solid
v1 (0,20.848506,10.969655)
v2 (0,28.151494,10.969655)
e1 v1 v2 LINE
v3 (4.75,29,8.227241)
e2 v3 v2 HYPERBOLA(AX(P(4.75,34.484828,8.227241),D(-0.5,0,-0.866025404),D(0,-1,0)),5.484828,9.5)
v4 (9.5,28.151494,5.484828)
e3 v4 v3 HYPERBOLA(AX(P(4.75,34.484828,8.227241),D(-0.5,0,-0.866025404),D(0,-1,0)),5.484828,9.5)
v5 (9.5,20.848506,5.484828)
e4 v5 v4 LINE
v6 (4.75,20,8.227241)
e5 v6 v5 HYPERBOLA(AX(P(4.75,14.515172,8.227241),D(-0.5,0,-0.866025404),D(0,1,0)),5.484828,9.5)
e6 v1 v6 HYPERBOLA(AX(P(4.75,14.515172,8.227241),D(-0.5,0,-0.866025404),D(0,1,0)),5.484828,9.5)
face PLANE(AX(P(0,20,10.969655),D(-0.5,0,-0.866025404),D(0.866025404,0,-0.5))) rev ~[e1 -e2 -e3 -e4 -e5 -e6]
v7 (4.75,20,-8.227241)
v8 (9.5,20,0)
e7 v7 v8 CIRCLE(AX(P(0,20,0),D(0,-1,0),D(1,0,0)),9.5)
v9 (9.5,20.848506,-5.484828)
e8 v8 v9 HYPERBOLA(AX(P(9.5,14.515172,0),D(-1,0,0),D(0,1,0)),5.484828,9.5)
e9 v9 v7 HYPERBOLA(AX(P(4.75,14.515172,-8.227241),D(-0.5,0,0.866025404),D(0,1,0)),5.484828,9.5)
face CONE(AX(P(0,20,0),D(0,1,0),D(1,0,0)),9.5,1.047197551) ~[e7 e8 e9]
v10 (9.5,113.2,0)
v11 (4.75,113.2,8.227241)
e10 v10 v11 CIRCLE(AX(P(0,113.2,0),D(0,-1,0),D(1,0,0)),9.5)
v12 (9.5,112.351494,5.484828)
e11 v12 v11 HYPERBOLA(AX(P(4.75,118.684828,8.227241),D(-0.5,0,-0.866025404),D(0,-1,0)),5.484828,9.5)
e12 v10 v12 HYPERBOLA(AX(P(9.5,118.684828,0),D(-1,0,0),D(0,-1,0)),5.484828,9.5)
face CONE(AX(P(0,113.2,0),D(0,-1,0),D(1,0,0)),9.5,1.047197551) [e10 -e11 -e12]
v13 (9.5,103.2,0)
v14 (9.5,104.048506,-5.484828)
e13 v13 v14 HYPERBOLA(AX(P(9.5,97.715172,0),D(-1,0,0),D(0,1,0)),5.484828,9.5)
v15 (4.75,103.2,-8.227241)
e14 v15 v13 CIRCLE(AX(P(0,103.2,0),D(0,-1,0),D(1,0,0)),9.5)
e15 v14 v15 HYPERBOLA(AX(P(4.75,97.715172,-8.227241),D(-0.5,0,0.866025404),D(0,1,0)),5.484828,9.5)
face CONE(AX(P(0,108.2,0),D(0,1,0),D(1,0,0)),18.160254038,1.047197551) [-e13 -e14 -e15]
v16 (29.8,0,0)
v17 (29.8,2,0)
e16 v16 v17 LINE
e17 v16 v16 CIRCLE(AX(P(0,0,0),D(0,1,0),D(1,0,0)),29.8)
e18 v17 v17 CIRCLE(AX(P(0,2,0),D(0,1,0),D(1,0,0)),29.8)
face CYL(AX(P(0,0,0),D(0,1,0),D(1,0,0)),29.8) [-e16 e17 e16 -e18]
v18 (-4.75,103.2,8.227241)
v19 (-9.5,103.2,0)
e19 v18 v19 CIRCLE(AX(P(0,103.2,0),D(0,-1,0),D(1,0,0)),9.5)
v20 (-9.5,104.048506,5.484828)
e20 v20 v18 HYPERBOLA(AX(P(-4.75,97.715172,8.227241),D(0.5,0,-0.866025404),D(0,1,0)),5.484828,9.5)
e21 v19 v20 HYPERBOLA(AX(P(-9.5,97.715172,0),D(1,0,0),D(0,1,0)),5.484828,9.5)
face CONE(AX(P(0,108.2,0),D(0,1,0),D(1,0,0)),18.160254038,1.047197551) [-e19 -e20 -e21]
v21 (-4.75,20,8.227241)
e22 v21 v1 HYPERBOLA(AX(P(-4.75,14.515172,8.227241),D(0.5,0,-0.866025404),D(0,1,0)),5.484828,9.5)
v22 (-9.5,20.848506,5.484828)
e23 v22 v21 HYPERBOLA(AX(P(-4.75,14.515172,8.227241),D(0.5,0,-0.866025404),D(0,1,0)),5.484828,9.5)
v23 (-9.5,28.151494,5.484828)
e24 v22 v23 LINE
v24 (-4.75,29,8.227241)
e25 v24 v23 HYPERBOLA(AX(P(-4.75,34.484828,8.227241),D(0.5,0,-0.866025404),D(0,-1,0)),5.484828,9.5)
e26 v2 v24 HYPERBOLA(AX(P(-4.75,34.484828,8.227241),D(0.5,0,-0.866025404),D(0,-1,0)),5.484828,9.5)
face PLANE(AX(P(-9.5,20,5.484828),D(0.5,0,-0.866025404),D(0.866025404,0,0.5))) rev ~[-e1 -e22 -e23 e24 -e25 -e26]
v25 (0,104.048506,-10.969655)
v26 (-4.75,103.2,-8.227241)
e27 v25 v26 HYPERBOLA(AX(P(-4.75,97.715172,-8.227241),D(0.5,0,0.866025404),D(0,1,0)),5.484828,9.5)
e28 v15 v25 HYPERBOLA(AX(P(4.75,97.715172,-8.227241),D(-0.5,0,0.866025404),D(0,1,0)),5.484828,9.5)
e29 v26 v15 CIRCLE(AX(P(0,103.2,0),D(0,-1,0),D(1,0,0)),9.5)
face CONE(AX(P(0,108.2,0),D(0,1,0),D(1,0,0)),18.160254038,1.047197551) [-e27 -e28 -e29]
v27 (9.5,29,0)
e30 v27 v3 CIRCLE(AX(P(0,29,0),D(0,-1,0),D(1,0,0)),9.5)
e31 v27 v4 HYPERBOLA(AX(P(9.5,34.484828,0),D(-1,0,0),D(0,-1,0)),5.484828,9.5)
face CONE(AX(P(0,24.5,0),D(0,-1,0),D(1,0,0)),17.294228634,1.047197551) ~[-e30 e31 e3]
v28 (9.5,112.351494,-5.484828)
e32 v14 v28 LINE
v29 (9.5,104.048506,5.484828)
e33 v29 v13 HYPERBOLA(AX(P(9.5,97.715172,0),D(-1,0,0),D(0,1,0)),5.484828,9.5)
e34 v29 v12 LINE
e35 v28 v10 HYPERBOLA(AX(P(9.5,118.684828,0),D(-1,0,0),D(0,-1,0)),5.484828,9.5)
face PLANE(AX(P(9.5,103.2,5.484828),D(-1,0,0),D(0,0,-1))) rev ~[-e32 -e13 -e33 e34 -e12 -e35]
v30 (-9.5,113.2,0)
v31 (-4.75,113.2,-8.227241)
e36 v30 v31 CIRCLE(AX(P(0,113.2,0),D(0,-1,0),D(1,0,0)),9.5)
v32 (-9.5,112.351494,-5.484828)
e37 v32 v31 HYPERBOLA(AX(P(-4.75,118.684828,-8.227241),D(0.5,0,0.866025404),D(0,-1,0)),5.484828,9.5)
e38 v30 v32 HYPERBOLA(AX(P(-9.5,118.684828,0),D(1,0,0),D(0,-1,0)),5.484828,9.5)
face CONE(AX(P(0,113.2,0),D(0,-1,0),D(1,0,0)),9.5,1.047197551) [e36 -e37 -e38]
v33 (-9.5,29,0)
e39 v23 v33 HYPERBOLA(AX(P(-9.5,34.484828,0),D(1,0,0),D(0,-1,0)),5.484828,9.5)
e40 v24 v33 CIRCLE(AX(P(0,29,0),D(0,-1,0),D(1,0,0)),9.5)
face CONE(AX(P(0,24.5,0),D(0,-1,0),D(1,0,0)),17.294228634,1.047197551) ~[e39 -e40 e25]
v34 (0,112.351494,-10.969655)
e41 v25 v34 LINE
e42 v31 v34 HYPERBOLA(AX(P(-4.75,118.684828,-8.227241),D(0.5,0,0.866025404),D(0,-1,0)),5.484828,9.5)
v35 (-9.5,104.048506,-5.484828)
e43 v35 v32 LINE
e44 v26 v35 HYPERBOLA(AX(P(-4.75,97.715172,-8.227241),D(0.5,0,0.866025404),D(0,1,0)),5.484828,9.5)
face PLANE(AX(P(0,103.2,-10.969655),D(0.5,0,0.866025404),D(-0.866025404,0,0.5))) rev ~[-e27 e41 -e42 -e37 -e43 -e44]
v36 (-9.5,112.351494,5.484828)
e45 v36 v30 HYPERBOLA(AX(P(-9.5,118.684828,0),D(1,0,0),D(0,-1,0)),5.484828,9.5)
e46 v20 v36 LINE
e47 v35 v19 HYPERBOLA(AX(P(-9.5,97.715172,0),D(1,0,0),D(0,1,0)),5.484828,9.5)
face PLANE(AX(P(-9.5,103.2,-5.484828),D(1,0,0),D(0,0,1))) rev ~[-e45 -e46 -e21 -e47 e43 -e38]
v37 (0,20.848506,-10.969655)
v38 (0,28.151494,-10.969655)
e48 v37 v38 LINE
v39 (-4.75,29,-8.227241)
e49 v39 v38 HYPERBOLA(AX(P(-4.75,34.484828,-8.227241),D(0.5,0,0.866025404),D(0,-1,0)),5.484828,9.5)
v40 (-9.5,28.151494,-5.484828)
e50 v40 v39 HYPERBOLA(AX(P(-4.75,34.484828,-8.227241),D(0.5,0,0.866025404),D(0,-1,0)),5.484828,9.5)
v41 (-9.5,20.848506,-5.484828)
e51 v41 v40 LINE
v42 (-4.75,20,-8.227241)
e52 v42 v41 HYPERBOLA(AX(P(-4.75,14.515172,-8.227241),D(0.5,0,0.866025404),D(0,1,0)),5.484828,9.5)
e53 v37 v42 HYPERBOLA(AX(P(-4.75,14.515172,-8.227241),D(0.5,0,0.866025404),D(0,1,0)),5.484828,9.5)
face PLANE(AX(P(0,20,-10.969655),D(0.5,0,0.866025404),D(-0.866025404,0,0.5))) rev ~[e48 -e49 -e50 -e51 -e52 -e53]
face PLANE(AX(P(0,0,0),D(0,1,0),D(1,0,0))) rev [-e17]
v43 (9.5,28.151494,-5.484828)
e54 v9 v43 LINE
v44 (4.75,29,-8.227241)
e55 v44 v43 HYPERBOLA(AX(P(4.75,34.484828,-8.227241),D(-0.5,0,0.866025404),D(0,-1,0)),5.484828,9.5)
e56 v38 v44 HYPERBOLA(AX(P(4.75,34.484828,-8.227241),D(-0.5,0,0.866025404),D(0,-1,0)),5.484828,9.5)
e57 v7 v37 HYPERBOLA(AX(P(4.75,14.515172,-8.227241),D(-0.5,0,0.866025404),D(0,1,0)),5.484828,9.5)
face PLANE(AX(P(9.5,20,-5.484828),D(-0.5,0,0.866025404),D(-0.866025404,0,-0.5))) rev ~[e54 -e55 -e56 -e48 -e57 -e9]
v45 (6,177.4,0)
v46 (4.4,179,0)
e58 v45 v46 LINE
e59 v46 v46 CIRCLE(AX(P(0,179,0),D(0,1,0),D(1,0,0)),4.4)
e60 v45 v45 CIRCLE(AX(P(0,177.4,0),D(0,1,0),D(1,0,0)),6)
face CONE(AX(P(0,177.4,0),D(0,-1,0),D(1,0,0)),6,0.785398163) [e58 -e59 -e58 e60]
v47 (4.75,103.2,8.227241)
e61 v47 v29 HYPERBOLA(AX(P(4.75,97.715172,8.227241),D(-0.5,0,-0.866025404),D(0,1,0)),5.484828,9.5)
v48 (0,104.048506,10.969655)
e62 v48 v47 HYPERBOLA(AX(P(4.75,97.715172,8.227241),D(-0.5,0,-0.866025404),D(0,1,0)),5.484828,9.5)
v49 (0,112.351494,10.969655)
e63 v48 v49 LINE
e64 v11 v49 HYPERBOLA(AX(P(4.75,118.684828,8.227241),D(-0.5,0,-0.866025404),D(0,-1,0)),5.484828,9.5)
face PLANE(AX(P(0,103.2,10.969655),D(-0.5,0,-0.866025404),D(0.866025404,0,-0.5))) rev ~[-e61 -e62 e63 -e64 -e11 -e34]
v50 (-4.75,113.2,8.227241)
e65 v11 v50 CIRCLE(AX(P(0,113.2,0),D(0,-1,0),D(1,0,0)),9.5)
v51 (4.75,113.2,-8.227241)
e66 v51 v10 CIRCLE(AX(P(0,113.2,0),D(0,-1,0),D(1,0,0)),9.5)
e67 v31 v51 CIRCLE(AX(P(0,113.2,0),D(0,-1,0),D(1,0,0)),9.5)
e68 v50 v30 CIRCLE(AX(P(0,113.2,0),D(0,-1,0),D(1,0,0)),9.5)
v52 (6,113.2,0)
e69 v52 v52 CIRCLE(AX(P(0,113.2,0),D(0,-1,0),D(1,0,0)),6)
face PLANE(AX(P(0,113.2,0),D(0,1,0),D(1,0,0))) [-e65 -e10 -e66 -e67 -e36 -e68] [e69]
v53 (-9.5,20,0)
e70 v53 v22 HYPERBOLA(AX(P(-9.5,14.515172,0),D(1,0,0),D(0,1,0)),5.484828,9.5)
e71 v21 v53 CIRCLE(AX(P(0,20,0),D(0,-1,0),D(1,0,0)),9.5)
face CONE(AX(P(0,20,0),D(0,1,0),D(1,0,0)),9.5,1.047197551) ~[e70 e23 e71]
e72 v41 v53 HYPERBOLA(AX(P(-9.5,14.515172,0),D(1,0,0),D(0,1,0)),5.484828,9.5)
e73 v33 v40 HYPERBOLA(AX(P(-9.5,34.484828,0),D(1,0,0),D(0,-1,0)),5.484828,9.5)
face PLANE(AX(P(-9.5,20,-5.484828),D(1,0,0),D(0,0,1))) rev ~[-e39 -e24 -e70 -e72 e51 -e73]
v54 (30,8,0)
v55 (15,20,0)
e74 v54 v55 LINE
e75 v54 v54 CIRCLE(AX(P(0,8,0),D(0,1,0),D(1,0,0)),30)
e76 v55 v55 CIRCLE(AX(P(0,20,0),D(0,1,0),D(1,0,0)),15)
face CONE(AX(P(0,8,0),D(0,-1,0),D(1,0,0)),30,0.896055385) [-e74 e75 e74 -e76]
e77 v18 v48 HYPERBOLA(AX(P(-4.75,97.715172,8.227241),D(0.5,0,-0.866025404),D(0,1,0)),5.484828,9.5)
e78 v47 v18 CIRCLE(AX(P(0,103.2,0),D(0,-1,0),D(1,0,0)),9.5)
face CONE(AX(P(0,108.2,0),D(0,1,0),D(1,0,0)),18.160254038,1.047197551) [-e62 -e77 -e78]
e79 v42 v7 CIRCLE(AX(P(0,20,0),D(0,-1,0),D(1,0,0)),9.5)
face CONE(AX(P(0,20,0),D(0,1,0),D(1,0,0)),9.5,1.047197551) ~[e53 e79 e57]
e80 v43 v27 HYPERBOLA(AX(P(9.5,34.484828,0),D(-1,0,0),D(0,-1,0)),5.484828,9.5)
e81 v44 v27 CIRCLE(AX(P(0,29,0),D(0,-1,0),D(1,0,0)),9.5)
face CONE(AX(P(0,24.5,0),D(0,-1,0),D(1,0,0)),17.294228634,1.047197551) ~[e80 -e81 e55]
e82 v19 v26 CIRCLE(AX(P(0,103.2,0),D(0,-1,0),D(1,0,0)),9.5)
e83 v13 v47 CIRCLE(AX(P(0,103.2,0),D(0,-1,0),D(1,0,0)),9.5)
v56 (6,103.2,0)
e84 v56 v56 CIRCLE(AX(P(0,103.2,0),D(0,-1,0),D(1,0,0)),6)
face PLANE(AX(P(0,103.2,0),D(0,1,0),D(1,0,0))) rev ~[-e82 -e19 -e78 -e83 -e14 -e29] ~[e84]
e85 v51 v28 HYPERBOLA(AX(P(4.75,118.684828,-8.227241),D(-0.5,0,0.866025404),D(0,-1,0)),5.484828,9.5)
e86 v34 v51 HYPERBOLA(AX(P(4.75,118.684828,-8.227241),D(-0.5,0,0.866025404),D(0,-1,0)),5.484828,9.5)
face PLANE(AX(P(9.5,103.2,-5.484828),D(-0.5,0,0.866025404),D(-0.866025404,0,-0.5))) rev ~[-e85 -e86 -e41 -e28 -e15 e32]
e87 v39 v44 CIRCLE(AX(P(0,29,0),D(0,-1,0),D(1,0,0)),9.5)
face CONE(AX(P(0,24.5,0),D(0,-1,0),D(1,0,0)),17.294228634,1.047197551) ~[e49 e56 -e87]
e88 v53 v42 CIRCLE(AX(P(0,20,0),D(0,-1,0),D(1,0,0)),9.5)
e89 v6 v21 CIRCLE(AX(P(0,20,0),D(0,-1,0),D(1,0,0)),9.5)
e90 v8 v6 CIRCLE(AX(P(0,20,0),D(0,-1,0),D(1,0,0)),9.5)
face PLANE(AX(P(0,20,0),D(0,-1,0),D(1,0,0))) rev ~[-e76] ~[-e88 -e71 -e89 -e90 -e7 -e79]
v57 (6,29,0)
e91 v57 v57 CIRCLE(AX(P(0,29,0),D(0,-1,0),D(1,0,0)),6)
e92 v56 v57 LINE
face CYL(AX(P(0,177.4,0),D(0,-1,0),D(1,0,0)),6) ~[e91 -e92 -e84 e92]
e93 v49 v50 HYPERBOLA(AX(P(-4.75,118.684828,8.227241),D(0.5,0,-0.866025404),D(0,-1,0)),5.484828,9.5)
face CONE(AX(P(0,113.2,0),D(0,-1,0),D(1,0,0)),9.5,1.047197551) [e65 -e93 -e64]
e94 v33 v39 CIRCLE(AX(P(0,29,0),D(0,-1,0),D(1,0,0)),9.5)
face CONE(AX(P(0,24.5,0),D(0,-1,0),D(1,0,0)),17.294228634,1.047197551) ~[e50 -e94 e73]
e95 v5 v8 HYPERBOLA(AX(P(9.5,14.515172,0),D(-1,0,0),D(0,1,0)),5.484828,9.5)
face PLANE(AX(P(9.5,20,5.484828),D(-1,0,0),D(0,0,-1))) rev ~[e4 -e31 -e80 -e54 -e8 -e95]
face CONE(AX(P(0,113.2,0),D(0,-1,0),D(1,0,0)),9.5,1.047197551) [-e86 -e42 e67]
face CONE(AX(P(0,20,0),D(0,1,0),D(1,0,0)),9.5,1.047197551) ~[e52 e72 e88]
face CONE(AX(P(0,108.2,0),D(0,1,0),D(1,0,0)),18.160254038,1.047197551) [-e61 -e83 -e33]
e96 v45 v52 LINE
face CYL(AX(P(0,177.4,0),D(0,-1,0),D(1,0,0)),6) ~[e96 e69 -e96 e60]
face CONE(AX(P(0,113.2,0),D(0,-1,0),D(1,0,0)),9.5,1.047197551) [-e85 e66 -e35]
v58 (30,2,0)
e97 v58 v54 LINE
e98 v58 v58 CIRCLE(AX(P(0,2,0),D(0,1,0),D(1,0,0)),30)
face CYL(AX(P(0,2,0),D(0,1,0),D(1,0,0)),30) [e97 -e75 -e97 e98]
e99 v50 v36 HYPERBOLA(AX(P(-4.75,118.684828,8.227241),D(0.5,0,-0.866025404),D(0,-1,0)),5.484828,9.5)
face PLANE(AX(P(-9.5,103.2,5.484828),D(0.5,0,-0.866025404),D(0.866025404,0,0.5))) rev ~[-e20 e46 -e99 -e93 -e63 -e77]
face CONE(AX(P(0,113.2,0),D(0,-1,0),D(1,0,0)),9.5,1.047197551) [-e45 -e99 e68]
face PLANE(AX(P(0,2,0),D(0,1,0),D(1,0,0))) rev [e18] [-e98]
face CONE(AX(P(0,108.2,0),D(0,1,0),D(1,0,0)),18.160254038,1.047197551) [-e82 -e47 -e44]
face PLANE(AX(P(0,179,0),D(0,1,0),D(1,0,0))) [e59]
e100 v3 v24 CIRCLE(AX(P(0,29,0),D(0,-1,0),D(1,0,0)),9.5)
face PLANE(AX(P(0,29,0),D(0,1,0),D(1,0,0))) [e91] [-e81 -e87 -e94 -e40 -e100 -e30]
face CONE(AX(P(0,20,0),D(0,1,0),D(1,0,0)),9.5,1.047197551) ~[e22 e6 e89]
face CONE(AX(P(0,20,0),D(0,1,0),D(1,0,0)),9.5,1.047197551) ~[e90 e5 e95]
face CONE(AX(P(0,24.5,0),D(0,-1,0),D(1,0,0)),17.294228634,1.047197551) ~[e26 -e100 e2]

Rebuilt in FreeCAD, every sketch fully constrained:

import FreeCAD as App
import Part
import Sketcher

V = App.Vector
Q = App.Units.Quantity


def add_polygon(sketch, points):
    """Adds a closed chain of lines whose ends are joined by coincident constraints."""
    first, n = sketch.GeometryCount, len(points)
    for a, b in zip(points, points[1:] + points[:1]):
        sketch.addGeometry(Part.LineSegment(App.Vector(*a, 0), App.Vector(*b, 0)), False)
    for i in range(n):
        sketch.addConstraint(Sketcher.Constraint("Coincident", first + i, 2, first + (i + 1) % n, 1))

doc = App.newDocument("Part")
body = doc.addObject("PartDesign::Body", "Body")

# Sketch on XY plane
sketch1 = body.newObject("Sketcher::SketchObject", "Sketch")
sketch1.AttachmentSupport = (doc.getObject("XY_Plane"), [""])
sketch1.MapMode = "FlatFace"
add_polygon(sketch1, [(-29.8, 0), (0, 0), (0, 179), (-4.4, 179), (-6, 177.4), (-6, 20), (-15, 20), (-30, 8), (-30, 2), (-29.8, 2)])  # lines 0-9
sketch1.addConstraint([
    Sketcher.Constraint("Horizontal", 0),
    Sketcher.Constraint("Vertical", 1),
    Sketcher.Constraint("Horizontal", 2),
    Sketcher.Constraint("Vertical", 4),
    Sketcher.Constraint("Horizontal", 5),
    Sketcher.Constraint("Vertical", 7),
    Sketcher.Constraint("Horizontal", 8),
    Sketcher.Constraint("Vertical", 9),
    Sketcher.Constraint("Coincident", 0, 2, -1, 1),
    Sketcher.Constraint("DistanceX", 5, 2, 5, 1, 9.0),
    Sketcher.Constraint("DistanceY", 1, 1, 1, 2, 179.0),
    Sketcher.Constraint("DistanceY", 7, 2, 7, 1, 6.0),
    Sketcher.Constraint("DistanceY", 9, 2, 9, 1, 2.0),
    Sketcher.Constraint("Angle", 3, Q("-135 deg")),
    Sketcher.Constraint("DistanceX", 0, 1, 0, 2, 29.8),
    Sketcher.Constraint("DistanceX", 2, 2, 2, 1, 4.4),
    Sketcher.Constraint("DistanceX", 8, 1, 8, 2, 0.2),
    Sketcher.Constraint("DistanceY", 4, 2, 4, 1, 157.4),
    Sketcher.Constraint("DistanceX", 3, 2, -1, 1, 6.0),
])
revolution = body.newObject("PartDesign::Revolution", "Revolution")
revolution.Profile = sketch1
revolution.ReferenceAxis = (sketch1, ["V_Axis"])
revolution.Angle = 360

# Sketch on XZ plane
sketch2 = body.newObject("Sketcher::SketchObject", "Sketch001")
sketch2.AttachmentSupport = (doc.getObject("XZ_Plane"), [""])
sketch2.MapMode = "FlatFace"
sketch2.AttachmentOffset = App.Placement(V(0, 0, -20), App.Rotation())
add_polygon(sketch2, [(0, -10.969655), (-9.5, -5.484828), (-9.5, 5.484828), (0, 10.969655), (9.5, 5.484828), (9.5, -5.484828)])  # lines 0-5
sketch2.addConstraint([
    Sketcher.Constraint("Vertical", 1),
    Sketcher.Constraint("Vertical", 4),
    Sketcher.Constraint("Symmetric", 0, 2, 3, 2, -1, 1),
    Sketcher.Constraint("Symmetric", 2, 2, 5, 2, -1, 1),
    Sketcher.Constraint("PointOnObject", 2, 2, -2),
    Sketcher.Constraint("Parallel", 2, 5),
    Sketcher.Constraint("Horizontal", 1, 2, 3, 2),
    Sketcher.Constraint("Angle", 0, Q("150 deg")),
    Sketcher.Constraint("DistanceX", 1, 2, 3, 2, 19.0),
    Sketcher.Constraint("DistanceY", 1, 1, 1, 2, 10.969655),
])
pad1 = body.newObject("PartDesign::Pad", "Pad")
pad1.Profile = sketch2
pad1.Length = 9
pad1.Reversed = True

# Sketch on XZ plane
sketch3 = body.newObject("Sketcher::SketchObject", "Sketch002")
sketch3.AttachmentSupport = (doc.getObject("XZ_Plane"), [""])
sketch3.MapMode = "FlatFace"
sketch3.AttachmentOffset = App.Placement(V(0, 0, -103.2), App.Rotation())
add_polygon(sketch3, [(9.5, -5.484828), (0, -10.969655), (-9.5, -5.484828), (-9.5, 5.484828), (0, 10.969655), (9.5, 5.484828)])  # lines 0-5
sketch3.addConstraint([
    Sketcher.Constraint("Vertical", 2),
    Sketcher.Constraint("Vertical", 5),
    Sketcher.Constraint("Symmetric", 0, 2, 3, 2, -1, 1),
    Sketcher.Constraint("Symmetric", 1, 2, 4, 2, -1, 1),
    Sketcher.Constraint("PointOnObject", 0, 2, -2),
    Sketcher.Constraint("Parallel", 0, 3),
    Sketcher.Constraint("Horizontal", 2, 2, 4, 2),
    Sketcher.Constraint("Angle", 0, Q("-150 deg")),
    Sketcher.Constraint("DistanceX", 2, 2, 4, 2, 19.0),
    Sketcher.Constraint("DistanceY", 2, 1, 2, 2, 10.969655),
])
pad2 = body.newObject("PartDesign::Pad", "Pad001")
pad2.Profile = sketch3
pad2.Length = 10
pad2.Reversed = True

# Sketch on XY plane
sketch4 = body.newObject("Sketcher::SketchObject", "Sketch003")
sketch4.AttachmentSupport = (doc.getObject("XY_Plane"), [""])
sketch4.MapMode = "FlatFace"
add_polygon(sketch4, [(-9.5, 113.2), (-18.160254, 113.2), (-18.160254, 108.2)])  # lines 0-2
add_polygon(sketch4, [(-18.160254, 108.2), (-18.160254, 103.2), (-9.5, 103.2)])  # lines 3-5
add_polygon(sketch4, [(-17.294229, 29), (-17.294229, 24.5), (-9.5, 29)])  # lines 6-8
add_polygon(sketch4, [(-17.294229, 24.5), (-17.294229, 20), (-9.5, 20)])  # lines 9-11
sketch4.addConstraint([
    Sketcher.Constraint("Horizontal", 0),
    Sketcher.Constraint("Vertical", 1),
    Sketcher.Constraint("Vertical", 3),
    Sketcher.Constraint("Horizontal", 4),
    Sketcher.Constraint("Vertical", 6),
    Sketcher.Constraint("Horizontal", 8),
    Sketcher.Constraint("Vertical", 9),
    Sketcher.Constraint("Horizontal", 10),
    Sketcher.Constraint("Coincident", 5, 2, 1, 2),
    Sketcher.Constraint("Coincident", 11, 2, 6, 2),
    Sketcher.Constraint("Parallel", 2, 7),
    Sketcher.Constraint("Parallel", 5, 11),
    Sketcher.Constraint("Vertical", 2, 2, 4, 2),
    Sketcher.Constraint("Vertical", 4, 2, 7, 2),
    Sketcher.Constraint("Vertical", 7, 2, 10, 2),
    Sketcher.Constraint("Equal", 1, 3),
    Sketcher.Constraint("DistanceY", 1, 2, 1, 1, 5.0),
    Sketcher.Constraint("Angle", 2, Q("30 deg")),
    Sketcher.Constraint("Distance", 7, 9.0),
    Sketcher.Constraint("DistanceY", -1, 1, 7, 2, 29.0),
    Sketcher.Constraint("DistanceY", -1, 1, 0, 2, 113.2),
    Sketcher.Constraint("DistanceX", 2, 2, -1, 1, 9.5),
])
groove = body.newObject("PartDesign::Groove", "Groove")
groove.Profile = sketch4
groove.ReferenceAxis = (sketch4, ["V_Axis"])
groove.Angle = 360

doc.recompute()
